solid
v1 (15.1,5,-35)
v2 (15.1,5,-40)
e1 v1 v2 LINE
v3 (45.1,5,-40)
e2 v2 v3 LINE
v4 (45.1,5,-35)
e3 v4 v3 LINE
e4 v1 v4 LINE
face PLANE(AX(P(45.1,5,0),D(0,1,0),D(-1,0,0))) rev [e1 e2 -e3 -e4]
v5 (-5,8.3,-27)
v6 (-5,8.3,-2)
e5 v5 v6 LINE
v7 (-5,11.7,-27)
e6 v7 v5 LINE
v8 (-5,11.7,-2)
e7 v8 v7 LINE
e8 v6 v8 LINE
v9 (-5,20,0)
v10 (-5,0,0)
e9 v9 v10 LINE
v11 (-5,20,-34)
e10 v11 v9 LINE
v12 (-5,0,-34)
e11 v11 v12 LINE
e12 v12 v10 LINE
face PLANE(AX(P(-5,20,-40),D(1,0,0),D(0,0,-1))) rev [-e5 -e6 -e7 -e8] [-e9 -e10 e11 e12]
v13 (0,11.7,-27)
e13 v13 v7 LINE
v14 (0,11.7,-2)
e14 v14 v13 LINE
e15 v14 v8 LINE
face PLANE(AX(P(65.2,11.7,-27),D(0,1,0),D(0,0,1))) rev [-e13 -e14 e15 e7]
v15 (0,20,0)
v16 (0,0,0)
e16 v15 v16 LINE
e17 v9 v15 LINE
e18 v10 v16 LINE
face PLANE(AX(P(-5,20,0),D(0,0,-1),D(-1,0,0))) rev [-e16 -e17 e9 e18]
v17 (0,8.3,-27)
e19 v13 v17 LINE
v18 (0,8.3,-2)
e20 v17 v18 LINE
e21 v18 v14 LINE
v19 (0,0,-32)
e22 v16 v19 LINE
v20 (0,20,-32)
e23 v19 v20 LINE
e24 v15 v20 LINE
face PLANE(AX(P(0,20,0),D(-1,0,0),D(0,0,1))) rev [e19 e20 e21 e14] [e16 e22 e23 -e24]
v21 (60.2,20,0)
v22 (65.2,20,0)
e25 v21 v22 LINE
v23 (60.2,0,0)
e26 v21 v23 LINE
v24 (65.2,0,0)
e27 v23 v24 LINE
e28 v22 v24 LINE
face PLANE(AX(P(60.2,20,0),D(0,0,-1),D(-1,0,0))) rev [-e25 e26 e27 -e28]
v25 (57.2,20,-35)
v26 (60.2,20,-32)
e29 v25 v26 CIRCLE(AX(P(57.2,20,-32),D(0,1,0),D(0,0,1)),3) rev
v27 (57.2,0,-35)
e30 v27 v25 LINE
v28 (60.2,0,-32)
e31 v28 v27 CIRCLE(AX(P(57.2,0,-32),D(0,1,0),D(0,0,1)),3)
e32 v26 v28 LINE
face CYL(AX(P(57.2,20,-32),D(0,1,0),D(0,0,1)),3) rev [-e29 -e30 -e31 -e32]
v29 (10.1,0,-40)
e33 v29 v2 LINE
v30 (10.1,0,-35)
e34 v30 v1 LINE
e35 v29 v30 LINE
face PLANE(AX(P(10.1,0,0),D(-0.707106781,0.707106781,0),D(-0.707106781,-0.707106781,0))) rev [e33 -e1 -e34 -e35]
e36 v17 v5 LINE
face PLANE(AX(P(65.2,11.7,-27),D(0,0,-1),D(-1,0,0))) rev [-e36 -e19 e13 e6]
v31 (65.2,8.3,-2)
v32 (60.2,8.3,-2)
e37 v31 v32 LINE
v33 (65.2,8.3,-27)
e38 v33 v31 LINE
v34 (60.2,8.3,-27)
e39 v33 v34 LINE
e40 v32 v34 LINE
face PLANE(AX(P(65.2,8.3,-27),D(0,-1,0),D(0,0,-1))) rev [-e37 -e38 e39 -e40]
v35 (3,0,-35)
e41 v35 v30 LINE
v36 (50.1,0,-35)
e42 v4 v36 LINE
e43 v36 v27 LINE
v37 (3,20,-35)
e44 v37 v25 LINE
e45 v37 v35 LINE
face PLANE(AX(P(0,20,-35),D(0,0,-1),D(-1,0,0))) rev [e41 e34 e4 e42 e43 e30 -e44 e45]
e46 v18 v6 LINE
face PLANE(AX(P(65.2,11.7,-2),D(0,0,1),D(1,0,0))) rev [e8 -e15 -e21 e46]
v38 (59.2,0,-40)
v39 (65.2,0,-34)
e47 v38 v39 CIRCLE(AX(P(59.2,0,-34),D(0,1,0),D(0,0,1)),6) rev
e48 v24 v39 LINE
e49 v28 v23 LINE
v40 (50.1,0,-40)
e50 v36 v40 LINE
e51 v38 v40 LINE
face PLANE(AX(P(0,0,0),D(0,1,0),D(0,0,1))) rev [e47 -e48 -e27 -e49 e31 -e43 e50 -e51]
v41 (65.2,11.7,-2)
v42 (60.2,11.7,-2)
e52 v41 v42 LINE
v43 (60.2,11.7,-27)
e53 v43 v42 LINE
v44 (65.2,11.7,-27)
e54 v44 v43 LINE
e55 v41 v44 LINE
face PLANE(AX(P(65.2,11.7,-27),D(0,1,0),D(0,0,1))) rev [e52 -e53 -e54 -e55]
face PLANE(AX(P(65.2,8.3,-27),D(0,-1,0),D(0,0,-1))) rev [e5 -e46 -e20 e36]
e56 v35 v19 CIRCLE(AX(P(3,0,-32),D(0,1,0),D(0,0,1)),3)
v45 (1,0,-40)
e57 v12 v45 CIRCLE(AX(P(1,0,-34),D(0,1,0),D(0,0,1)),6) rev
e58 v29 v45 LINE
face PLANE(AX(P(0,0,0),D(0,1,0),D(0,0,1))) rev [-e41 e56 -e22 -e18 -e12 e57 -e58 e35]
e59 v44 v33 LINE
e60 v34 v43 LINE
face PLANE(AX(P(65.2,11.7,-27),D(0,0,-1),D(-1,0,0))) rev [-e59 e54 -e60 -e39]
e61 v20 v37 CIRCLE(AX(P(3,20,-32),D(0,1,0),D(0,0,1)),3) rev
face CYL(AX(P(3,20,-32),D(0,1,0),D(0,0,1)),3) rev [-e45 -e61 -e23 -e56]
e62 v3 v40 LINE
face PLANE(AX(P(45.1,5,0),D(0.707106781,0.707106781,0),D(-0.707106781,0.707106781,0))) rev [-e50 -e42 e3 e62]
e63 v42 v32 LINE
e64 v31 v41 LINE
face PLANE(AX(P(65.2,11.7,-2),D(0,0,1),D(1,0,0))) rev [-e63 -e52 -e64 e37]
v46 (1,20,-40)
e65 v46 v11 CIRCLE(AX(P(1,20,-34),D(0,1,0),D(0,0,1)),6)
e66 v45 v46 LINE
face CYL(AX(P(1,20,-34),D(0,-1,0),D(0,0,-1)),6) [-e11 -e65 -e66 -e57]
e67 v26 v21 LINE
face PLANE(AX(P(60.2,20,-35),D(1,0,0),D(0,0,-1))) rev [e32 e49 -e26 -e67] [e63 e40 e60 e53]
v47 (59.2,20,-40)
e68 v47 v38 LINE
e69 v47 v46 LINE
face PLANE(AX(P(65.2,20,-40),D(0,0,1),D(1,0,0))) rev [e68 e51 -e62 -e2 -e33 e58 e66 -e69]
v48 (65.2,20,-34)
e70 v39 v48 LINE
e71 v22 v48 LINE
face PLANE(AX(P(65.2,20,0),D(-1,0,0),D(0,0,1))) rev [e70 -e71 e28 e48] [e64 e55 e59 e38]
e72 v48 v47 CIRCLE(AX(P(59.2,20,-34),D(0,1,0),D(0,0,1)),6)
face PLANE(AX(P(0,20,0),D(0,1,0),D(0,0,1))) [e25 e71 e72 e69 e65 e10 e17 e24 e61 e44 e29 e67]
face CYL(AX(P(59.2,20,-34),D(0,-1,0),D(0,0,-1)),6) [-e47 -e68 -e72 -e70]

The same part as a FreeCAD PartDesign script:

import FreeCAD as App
import Part
import Sketcher
Q = App.Units.Quantity


def edges_at(feature, points):
    """Names of the edges that pass closest to the given points."""
    edges = feature.Shape.Edges
    near = lambda p: min(range(len(edges)), key=lambda i: edges[i].distToShape(Part.Vertex(*p))[0])
    return sorted({f"Edge{near(p) + 1}" for p in points})


def add_polygon(sketch, points):
    """Adds a closed chain of lines whose ends are joined by coincident constraints."""
    first, n = sketch.GeometryCount, len(points)
    for a, b in zip(points, points[1:] + points[:1]):
        sketch.addGeometry(Part.LineSegment(App.Vector(*a, 0), App.Vector(*b, 0)), False)
    for i in range(n):
        sketch.addConstraint(Sketcher.Constraint("Coincident", first + i, 2, first + (i + 1) % n, 1))

doc = App.newDocument("Part")
body = doc.addObject("PartDesign::Body", "Body")

# Sketch on XZ plane
sketch1 = doc.addObject("Sketcher::SketchObject", "Sketch")
body.addObject(sketch1)
sketch1.AttachmentSupport = (doc.XZ_Plane, [""])
sketch1.MapMode = "FlatFace"
add_polygon(sketch1, [(0, 0), (0, -35), (60, -35), (60, 0), (65, 0), (65, -40), (-5, -40), (-5, 0)])  # lines 0-7
sketch1.addConstraint([
    Sketcher.Constraint("Vertical", 0),
    Sketcher.Constraint("Horizontal", 1),
    Sketcher.Constraint("Vertical", 2),
    Sketcher.Constraint("Horizontal", 3),
    Sketcher.Constraint("Vertical", 4),
    Sketcher.Constraint("Horizontal", 5),
    Sketcher.Constraint("Vertical", 6),
    Sketcher.Constraint("Horizontal", 7),
    Sketcher.Constraint("Coincident", 7, 2, -1, 1),
    Sketcher.Constraint("PointOnObject", 2, 2, -1),
    Sketcher.Constraint("Equal", 3, 7),
    Sketcher.Constraint("DistanceX", 3, 1, 3, 2, Q("5 mm")),
    Sketcher.Constraint("DistanceY", 0, 2, 0, 1, Q("35 mm")),
    Sketcher.Constraint("DistanceY", 4, 2, 4, 1, Q("40 mm")),
    Sketcher.Constraint("DistanceX", 1, 1, 1, 2, Q("60.2 mm")),
])
pad1 = doc.addObject("PartDesign::Pad", "Pad")
body.addObject(pad1)
pad1.Profile = sketch1
pad1.Length = 20
pad1.Reversed = True

# Sketch on YZ plane
sketch2 = doc.addObject("Sketcher::SketchObject", "Sketch001")
body.addObject(sketch2)
sketch2.AttachmentSupport = (doc.YZ_Plane, [""])
sketch2.MapMode = "FlatFace"
sketch2.AttachmentOffset = App.Placement(App.Vector(0, 0, -5), App.Rotation())
add_polygon(sketch2, [(11.7, -27), (8.3, -27), (8.3, -2), (11.7, -2)])  # lines 0-3
sketch2.addConstraint([
    Sketcher.Constraint("Horizontal", 0),
    Sketcher.Constraint("Vertical", 1),
    Sketcher.Constraint("Horizontal", 2),
    Sketcher.Constraint("Vertical", 3),
    Sketcher.Constraint("DistanceY", 1, 1, 1, 2, Q("25 mm")),
    Sketcher.Constraint("DistanceX", 0, 2, 0, 1, Q("3.4 mm")),
    Sketcher.Constraint("DistanceY", 0, 2, -1, 1, Q("27 mm")),
    Sketcher.Constraint("DistanceX", -1, 1, 0, 2, Q("8.3 mm")),
])
pocket1 = doc.addObject("PartDesign::Pocket", "Pocket")
body.addObject(pocket1)
pocket1.Profile = sketch2
pocket1.Type = "ThroughAll"
pocket1.Reversed = True
doc.recompute()

fillet = doc.addObject("PartDesign::Fillet", "Fillet")
body.addObject(fillet)
fillet.Base = (pocket1, edges_at(pocket1, [(60.2, 10, -35), (0, 10, -35)]))
fillet.Radius = 3
doc.recompute()

fillet2 = doc.addObject("PartDesign::Fillet", "Fillet001")
body.addObject(fillet2)
fillet2.Base = (fillet, edges_at(fillet, [(-5, 10, -40), (65.2, 10, -40)]))
fillet2.Radius = 6

# Sketch on XY plane
sketch3 = doc.addObject("Sketcher::SketchObject", "Sketch002")
body.addObject(sketch3)
sketch3.AttachmentSupport = (doc.XY_Plane, [""])
sketch3.MapMode = "FlatFace"
sketch3.AttachmentOffset = App.Placement(App.Vector(0, 0, -40), App.Rotation())
add_polygon(sketch3, [(15, 5), (45, 5), (50, 0), (10, 0)])  # lines 0-3
sketch3.addConstraint([
    Sketcher.Constraint("Horizontal", 0),
    Sketcher.Constraint("Horizontal", 2),
    Sketcher.Constraint("PointOnObject", 1, 2, -1),
    Sketcher.Constraint("Perpendicular", 1, 3),
    Sketcher.Constraint("Equal", 1, 3),
    Sketcher.Constraint("DistanceX", 0, 1, 0, 2, Q("30 mm")),
    Sketcher.Constraint("DistanceX", 2, 2, 2, 1, Q("40 mm")),
    Sketcher.Constraint("DistanceX", -1, 1, 0, 2, Q("45.1 mm")),
])
pocket2 = doc.addObject("PartDesign::Pocket", "Pocket001")
body.addObject(pocket2)
pocket2.Profile = sketch3
pocket2.Type = "ThroughAll"
pocket2.Reversed = True

doc.recompute()
